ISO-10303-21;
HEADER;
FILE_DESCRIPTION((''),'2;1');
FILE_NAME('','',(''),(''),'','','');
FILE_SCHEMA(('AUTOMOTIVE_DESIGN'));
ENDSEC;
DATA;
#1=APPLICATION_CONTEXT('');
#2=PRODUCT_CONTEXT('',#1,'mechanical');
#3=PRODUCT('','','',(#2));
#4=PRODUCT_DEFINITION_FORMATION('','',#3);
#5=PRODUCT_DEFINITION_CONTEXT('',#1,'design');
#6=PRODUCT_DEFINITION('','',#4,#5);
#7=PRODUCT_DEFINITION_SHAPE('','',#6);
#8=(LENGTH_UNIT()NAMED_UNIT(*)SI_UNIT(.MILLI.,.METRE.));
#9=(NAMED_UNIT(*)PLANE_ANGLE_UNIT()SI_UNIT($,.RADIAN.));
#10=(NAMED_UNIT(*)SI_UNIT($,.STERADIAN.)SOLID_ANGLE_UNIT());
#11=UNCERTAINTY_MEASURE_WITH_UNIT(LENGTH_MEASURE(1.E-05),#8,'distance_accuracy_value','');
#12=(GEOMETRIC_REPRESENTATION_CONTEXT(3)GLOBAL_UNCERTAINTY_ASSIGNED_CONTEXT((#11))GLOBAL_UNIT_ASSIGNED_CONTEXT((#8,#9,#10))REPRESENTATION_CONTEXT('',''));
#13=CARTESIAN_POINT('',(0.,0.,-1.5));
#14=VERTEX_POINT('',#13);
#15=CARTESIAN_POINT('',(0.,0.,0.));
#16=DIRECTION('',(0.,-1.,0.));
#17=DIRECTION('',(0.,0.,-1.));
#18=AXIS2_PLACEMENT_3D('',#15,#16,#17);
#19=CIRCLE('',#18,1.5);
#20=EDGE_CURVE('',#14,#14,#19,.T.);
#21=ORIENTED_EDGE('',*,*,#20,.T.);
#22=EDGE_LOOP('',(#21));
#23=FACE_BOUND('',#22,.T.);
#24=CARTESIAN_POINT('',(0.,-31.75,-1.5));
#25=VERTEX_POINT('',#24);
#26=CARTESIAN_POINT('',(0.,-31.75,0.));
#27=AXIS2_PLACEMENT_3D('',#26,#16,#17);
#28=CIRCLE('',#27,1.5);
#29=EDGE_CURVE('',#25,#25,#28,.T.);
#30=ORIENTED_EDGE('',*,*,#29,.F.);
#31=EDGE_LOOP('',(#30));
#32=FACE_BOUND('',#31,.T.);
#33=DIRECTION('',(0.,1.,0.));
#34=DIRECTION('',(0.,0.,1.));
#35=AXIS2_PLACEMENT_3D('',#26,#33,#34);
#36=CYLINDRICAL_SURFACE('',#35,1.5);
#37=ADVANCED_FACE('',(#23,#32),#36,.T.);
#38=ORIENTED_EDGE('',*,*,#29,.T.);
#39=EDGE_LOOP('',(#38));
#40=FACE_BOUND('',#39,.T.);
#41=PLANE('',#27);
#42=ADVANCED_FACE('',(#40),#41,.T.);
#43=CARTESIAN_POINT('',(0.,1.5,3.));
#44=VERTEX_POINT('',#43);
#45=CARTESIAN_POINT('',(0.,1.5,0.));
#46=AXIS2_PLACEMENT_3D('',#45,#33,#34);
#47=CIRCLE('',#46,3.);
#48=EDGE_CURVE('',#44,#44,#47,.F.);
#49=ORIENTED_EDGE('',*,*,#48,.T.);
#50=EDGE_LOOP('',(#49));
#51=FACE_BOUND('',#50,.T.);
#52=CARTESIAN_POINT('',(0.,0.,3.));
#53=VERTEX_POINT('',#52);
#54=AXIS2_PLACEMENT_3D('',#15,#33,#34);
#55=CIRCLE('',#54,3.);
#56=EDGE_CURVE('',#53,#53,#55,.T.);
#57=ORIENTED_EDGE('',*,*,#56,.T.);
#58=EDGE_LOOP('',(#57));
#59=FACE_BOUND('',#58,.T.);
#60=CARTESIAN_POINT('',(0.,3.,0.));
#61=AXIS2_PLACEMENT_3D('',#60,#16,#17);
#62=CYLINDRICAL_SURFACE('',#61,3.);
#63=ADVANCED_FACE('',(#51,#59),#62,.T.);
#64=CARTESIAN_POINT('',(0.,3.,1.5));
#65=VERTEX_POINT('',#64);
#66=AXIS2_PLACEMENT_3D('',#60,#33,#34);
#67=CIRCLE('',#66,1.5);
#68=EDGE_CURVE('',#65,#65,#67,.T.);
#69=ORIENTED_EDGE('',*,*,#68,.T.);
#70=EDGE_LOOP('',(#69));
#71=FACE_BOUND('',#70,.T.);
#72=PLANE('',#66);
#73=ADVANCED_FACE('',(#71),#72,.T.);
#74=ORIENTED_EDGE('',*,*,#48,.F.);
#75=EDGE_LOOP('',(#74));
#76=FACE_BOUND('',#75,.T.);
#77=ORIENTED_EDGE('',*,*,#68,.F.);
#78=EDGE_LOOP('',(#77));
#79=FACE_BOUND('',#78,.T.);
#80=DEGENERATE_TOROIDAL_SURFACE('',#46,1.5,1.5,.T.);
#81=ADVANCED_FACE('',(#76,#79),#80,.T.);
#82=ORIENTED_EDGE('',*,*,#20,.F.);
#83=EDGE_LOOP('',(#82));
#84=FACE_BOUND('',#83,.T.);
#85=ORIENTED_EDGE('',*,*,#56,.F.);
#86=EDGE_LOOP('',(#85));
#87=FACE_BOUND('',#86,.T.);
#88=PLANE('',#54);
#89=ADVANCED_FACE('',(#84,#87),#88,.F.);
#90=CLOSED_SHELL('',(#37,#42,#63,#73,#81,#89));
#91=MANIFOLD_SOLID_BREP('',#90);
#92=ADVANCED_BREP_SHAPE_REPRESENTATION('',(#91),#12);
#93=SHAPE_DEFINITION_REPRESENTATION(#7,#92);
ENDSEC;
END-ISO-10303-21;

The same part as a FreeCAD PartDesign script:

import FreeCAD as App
import Part
import Sketcher

V = App.Vector
Q = App.Units.Quantity


def edges_at(feature, points):
    """Names of the edges that pass closest to the given points."""
    edges = feature.Shape.Edges
    near = lambda p: min(range(len(edges)), key=lambda i: edges[i].distToShape(Part.Vertex(*p))[0])
    return sorted({f"Edge{near(p) + 1}" for p in points})

doc = App.newDocument("Part")
params = doc.addObject("Spreadsheet::Sheet", "Params")
for row, (alias, value) in enumerate([
    ("sketch1_diameter", "6 mm"),
    ("pad1_length", "3 mm"),
    ("fillet_radius", "1.5 mm"),
    ("sketch2_diameter", "3 mm"),
    ("pad2_length", "31.75 mm"),
], start=1):
    params.set(f"A{row}", alias)
    params.set(f"B{row}", "=" + value)
    params.setAlias(f"B{row}", alias)

body = doc.addObject("PartDesign::Body", "Body")

sketch1 = doc.addObject("Sketcher::SketchObject", "Sketch")
body.addObject(sketch1)
sketch1.AttachmentSupport = (doc.XZ_Plane, [""])
sketch1.MapMode = "FlatFace"
sketch1.addGeometry(Part.Circle(V(0, 0, 0), V(0, 0, 1), 3), False)
sketch1.addConstraint([
    Sketcher.Constraint("Coincident", 0, 3, -1, 1),
    Sketcher.Constraint("Diameter", 0, Q("6 mm")),
])
sketch1.setExpression("Constraints[1]", "Params.sketch1_diameter")
pad1 = doc.addObject("PartDesign::Pad", "Pad")
body.addObject(pad1)
pad1.Profile = sketch1
pad1.setExpression("Length", "Params.pad1_length")
pad1.Reversed = True
doc.recompute()

fillet = doc.addObject("PartDesign::Fillet", "Fillet")
body.addObject(fillet)
fillet.Base = (pad1, edges_at(pad1, [(-3, 3, 0)]))
fillet.setExpression("Radius", "Params.fillet_radius")

sketch2 = doc.addObject("Sketcher::SketchObject", "Sketch001")
body.addObject(sketch2)
sketch2.AttachmentSupport = (doc.XZ_Plane, [""])
sketch2.MapMode = "FlatFace"
sketch2.addGeometry(Part.Circle(V(0, 0, 0), V(0, 0, 1), 1.5), False)
sketch2.addConstraint([
    Sketcher.Constraint("Coincident", 0, 3, -1, 1),
    Sketcher.Constraint("Diameter", 0, Q("3 mm")),
])
sketch2.setExpression("Constraints[1]", "Params.sketch2_diameter")
pad2 = doc.addObject("PartDesign::Pad", "Pad001")
body.addObject(pad2)
pad2.Profile = sketch2
pad2.setExpression("Length", "Params.pad2_length")

doc.recompute()
